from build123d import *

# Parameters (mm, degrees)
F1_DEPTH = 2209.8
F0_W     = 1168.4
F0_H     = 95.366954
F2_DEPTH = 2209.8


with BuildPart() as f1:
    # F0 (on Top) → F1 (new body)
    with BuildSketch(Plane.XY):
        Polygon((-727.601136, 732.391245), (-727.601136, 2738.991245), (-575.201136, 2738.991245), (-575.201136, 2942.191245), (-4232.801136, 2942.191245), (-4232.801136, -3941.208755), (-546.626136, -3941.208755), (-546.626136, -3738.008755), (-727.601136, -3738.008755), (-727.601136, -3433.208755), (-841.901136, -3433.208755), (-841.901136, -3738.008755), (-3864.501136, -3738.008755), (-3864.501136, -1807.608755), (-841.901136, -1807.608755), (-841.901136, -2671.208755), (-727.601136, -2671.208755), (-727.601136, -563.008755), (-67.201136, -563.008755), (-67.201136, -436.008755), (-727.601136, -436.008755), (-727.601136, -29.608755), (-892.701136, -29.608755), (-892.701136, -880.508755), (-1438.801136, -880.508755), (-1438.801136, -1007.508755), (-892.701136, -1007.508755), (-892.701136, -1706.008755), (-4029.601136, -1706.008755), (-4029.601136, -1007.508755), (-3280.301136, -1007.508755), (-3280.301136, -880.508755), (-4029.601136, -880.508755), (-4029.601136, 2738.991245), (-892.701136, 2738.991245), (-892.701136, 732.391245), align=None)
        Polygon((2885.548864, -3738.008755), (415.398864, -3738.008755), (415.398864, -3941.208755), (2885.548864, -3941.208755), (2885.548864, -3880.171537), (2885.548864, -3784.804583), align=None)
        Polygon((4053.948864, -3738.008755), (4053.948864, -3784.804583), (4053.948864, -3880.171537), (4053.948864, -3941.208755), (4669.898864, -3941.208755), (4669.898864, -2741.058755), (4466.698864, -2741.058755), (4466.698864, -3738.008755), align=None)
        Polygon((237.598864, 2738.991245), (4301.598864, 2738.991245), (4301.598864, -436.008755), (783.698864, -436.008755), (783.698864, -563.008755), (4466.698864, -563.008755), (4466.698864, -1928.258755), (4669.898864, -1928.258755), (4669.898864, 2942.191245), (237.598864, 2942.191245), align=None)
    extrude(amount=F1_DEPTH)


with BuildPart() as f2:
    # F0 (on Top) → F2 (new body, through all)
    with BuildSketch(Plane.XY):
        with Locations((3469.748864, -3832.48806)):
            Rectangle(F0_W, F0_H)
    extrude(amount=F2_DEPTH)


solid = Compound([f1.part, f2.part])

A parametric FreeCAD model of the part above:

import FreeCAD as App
import Part
import Sketcher
Q = App.Units.Quantity


def add_polygon(sketch, points):
    """Adds a closed chain of lines whose ends are joined by coincident constraints."""
    first, n = sketch.GeometryCount, len(points)
    for a, b in zip(points, points[1:] + points[:1]):
        sketch.addGeometry(Part.LineSegment(App.Vector(*a, 0), App.Vector(*b, 0)), False)
    for i in range(n):
        sketch.addConstraint(Sketcher.Constraint("Coincident", first + i, 2, first + (i + 1) % n, 1))

doc = App.newDocument("Part")
body = doc.addObject("PartDesign::Body", "Body")
body.AllowCompound = True

# Sketch on XY plane
sketch1 = body.newObject("Sketcher::SketchObject", "Sketch")
sketch1.AttachmentSupport = (doc.getObject("XY_Plane"), [""])
sketch1.MapMode = "FlatFace"
add_polygon(sketch1, [(-727.601136, 732.391245), (-727.601136, 2738.991245), (-575.201136, 2738.991245), (-575.201136, 2942.191245), (-4232.801136, 2942.191245), (-4232.801136, -3941.208755), (-546.626136, -3941.208755), (-546.626136, -3738.008755), (-727.601136, -3738.008755), (-727.601136, -3433.208755), (-841.901136, -3433.208755), (-841.901136, -3738.008755), (-3864.501136, -3738.008755), (-3864.501136, -1807.608755), (-841.901136, -1807.608755), (-841.901136, -2671.208755), (-727.601136, -2671.208755), (-727.601136, -563.008755), (-67.201136, -563.008755), (-67.201136, -436.008755), (-727.601136, -436.008755), (-727.601136, -29.608755), (-892.701136, -29.608755), (-892.701136, -880.508755), (-1438.801136, -880.508755), (-1438.801136, -1007.508755), (-892.701136, -1007.508755), (-892.701136, -1706.008755), (-4029.601136, -1706.008755), (-4029.601136, -1007.508755), (-3280.301136, -1007.508755), (-3280.301136, -880.508755), (-4029.601136, -880.508755), (-4029.601136, 2738.991245), (-892.701136, 2738.991245), (-892.701136, 732.391245)])  # lines 0-35
add_polygon(sketch1, [(2885.548864, -3738.008755), (415.398864, -3738.008755), (415.398864, -3941.208755), (2885.548864, -3941.208755)])  # lines 36-39
add_polygon(sketch1, [(4053.948864, -3738.008755), (4053.948864, -3941.208755), (4669.898864, -3941.208755), (4669.898864, -2741.058755), (4466.698864, -2741.058755), (4466.698864, -3738.008755)])  # lines 40-45
add_polygon(sketch1, [(237.598864, 2738.991245), (4301.598864, 2738.991245), (4301.598864, -436.008755), (783.698864, -436.008755), (783.698864, -563.008755), (4466.698864, -563.008755), (4466.698864, -1928.258755), (4669.898864, -1928.258755), (4669.898864, 2942.191245), (237.598864, 2942.191245)])  # lines 46-55
sketch1.addConstraint([
    Sketcher.Constraint("Vertical", 0),
    Sketcher.Constraint("Horizontal", 1),
    Sketcher.Constraint("Vertical", 2),
    Sketcher.Constraint("Horizontal", 3),
    Sketcher.Constraint("Vertical", 4),
    Sketcher.Constraint("Horizontal", 5),
    Sketcher.Constraint("Vertical", 6),
    Sketcher.Constraint("Horizontal", 7),
    Sketcher.Constraint("Vertical", 8),
    Sketcher.Constraint("Horizontal", 9),
    Sketcher.Constraint("Vertical", 10),
    Sketcher.Constraint("Horizontal", 11),
    Sketcher.Constraint("Vertical", 12),
    Sketcher.Constraint("Horizontal", 13),
    Sketcher.Constraint("Vertical", 14),
    Sketcher.Constraint("Horizontal", 15),
    Sketcher.Constraint("Vertical", 16),
    Sketcher.Constraint("Horizontal", 17),
    Sketcher.Constraint("Vertical", 18),
    Sketcher.Constraint("Horizontal", 19),
    Sketcher.Constraint("Vertical", 20),
    Sketcher.Constraint("Horizontal", 21),
    Sketcher.Constraint("Vertical", 22),
    Sketcher.Constraint("Horizontal", 23),
    Sketcher.Constraint("Vertical", 24),
    Sketcher.Constraint("Horizontal", 25),
    Sketcher.Constraint("Vertical", 26),
    Sketcher.Constraint("Horizontal", 27),
    Sketcher.Constraint("Vertical", 28),
    Sketcher.Constraint("Horizontal", 29),
    Sketcher.Constraint("Vertical", 30),
    Sketcher.Constraint("Horizontal", 31),
    Sketcher.Constraint("Vertical", 32),
    Sketcher.Constraint("Horizontal", 33),
    Sketcher.Constraint("Vertical", 34),
    Sketcher.Constraint("Horizontal", 35),
    Sketcher.Constraint("Horizontal", 36),
    Sketcher.Constraint("Vertical", 37),
    Sketcher.Constraint("Horizontal", 38),
    Sketcher.Constraint("Vertical", 39),
    Sketcher.Constraint("Vertical", 40),
    Sketcher.Constraint("Horizontal", 41),
    Sketcher.Constraint("Vertical", 42),
    Sketcher.Constraint("Horizontal", 43),
    Sketcher.Constraint("Vertical", 44),
    Sketcher.Constraint("Horizontal", 45),
    Sketcher.Constraint("Horizontal", 46),
    Sketcher.Constraint("Vertical", 47),
    Sketcher.Constraint("Horizontal", 48),
    Sketcher.Constraint("Vertical", 49),
    Sketcher.Constraint("Horizontal", 50),
    Sketcher.Constraint("Vertical", 51),
    Sketcher.Constraint("Horizontal", 52),
    Sketcher.Constraint("Vertical", 53),
    Sketcher.Constraint("Horizontal", 54),
    Sketcher.Constraint("Vertical", 55),
    Sketcher.Constraint("Horizontal", 7, 2, 10, 2),
    Sketcher.Constraint("Horizontal", 25, 2, 28, 2),
    Sketcher.Constraint("Horizontal", 23, 2, 30, 2),
    Sketcher.Constraint("Horizontal", 1, 2, 32, 2),
    Sketcher.Constraint("Horizontal", 11, 2, 36, 2),
    Sketcher.Constraint("Horizontal", 5, 2, 37, 2),
    Sketcher.Constraint("Horizontal", 38, 2, 40, 2),
    Sketcher.Constraint("Horizontal", 39, 2, 44, 2),
    Sketcher.Constraint("Horizontal", 33, 2, 46, 2),
    Sketcher.Constraint("Horizontal", 19, 2, 47, 2),
    Sketcher.Constraint("Horizontal", 17, 2, 49, 2),
    Sketcher.Constraint("Horizontal", 3, 2, 53, 2),
    Sketcher.Constraint("Vertical", 0, 2, 7, 2),
    Sketcher.Constraint("Vertical", 10, 2, 13, 2),
    Sketcher.Constraint("Vertical", 8, 2, 15, 2),
    Sketcher.Constraint("Vertical", 16, 2, 19, 2),
    Sketcher.Constraint("Vertical", 22, 2, 25, 2),
    Sketcher.Constraint("Vertical", 28, 2, 31, 2),
    Sketcher.Constraint("Vertical", 26, 2, 33, 2),
    Sketcher.Constraint("Vertical", 44, 2, 50, 2),
    Sketcher.Constraint("Vertical", 42, 2, 52, 2),
    Sketcher.Constraint("Equal", 52, 2),
    Sketcher.Constraint("Equal", 2, 6),
    Sketcher.Constraint("Equal", 18, 24),
    Sketcher.Constraint("DistanceX", 1, 1, 1, 2, Q("6 in")),
    Sketcher.Constraint("DistanceX", 3, 2, 3, 1, Q("144 in")),
    Sketcher.Constraint("DistanceX", 11, 2, 11, 1, Q("119 in")),
    Sketcher.Constraint("DistanceX", 17, 1, 17, 2, Q("26 in")),
    Sketcher.Constraint("DistanceX", 43, 2, 43, 1, Q("8 in")),
    Sketcher.Constraint("DistanceX", 46, 1, 46, 2, Q("160 in")),
    Sketcher.Constraint("DistanceX", 50, 1, 50, 2, Q("145 in")),
    Sketcher.Constraint("DistanceY", 0, 1, 0, 2, Q("79 in")),
    Sketcher.Constraint("DistanceY", 4, 2, 4, 1, Q("271 in")),
    Sketcher.Constraint("DistanceY", 8, 1, 8, 2, Q("12 in")),
    Sketcher.Constraint("DistanceY", 12, 1, 12, 2, Q("76 in")),
    Sketcher.Constraint("DistanceY", 14, 2, 14, 1, Q("34 in")),
    Sketcher.Constraint("DistanceY", 16, 1, 16, 2, Q("83 in")),
    Sketcher.Constraint("DistanceY", 18, 1, 18, 2, Q("5 in")),
    Sketcher.Constraint("DistanceY", 20, 1, 20, 2, Q("16 in")),
    Sketcher.Constraint("DistanceX", 9, 2, 9, 1, Q("4.5 in")),
    Sketcher.Constraint("DistanceX", 21, 2, 21, 1, Q("6.5 in")),
    Sketcher.Constraint("DistanceX", 23, 2, 23, 1, Q("21.5 in")),
    Sketcher.Constraint("DistanceX", 27, 2, 27, 1, Q("123.5 in")),
    Sketcher.Constraint("DistanceX", 29, 1, 29, 2, Q("29.5 in")),
    Sketcher.Constraint("DistanceX", 48, 2, 48, 1, Q("138.5 in")),
    Sketcher.Constraint("DistanceY", 22, 2, 22, 1, Q("33.5 in")),
    Sketcher.Constraint("DistanceY", 26, 2, 26, 1, Q("27.5 in")),
    Sketcher.Constraint("DistanceX", 7, 2, 36, 2, Q("45 in")),
    Sketcher.Constraint("DistanceX", 38, 2, 40, 2, Q("46 in")),
    Sketcher.Constraint("DistanceX", 1, 2, 46, 2, Q("192 in")),
    Sketcher.Constraint("DistanceY", 43, 2, 51, 2, Q("32 in")),
    Sketcher.Constraint("DistanceX", 36, 2, 36, 1, Q("97.25 in")),
    Sketcher.Constraint("DistanceY", 42, 1, 42, 2, Q("47.25 in")),
    Sketcher.Constraint("DistanceX", 5, 1, 5, 2, Q("145.125 in")),
    Sketcher.Constraint("DistanceX", 0, 2, -1, 1, Q("727.601136 mm")),
    Sketcher.Constraint("DistanceY", -1, 1, 0, 2, Q("2738.991245 mm")),
])
pad1 = body.newObject("PartDesign::Pad", "Pad")
pad1.Profile = sketch1
pad1.Length = Q("87 in")
body2 = doc.addObject("PartDesign::Body", "Body001")

# Sketch on XY plane
sketch2 = body2.newObject("Sketcher::SketchObject", "Sketch001")
sketch2.AttachmentSupport = (doc.getObject("XY_Plane001"), [""])
sketch2.MapMode = "FlatFace"
add_polygon(sketch2, [(2885.548864, -3784.804583), (2885.548864, -3880.171537), (4053.948864, -3880.171537), (4053.948864, -3784.804583)])  # lines 0-3
sketch2.addConstraint([
    Sketcher.Constraint("Vertical", 0),
    Sketcher.Constraint("Horizontal", 1),
    Sketcher.Constraint("Vertical", 2),
    Sketcher.Constraint("Horizontal", 3),
    Sketcher.Constraint("DistanceX", 1, 1, 1, 2, Q("46 in")),
    Sketcher.Constraint("DistanceY", 0, 2, 0, 1, Q("95.366954 mm")),
    Sketcher.Constraint("DistanceX", -1, 1, 0, 2, Q("2885.548864 mm")),
    Sketcher.Constraint("DistanceY", 0, 2, -1, 1, Q("3880.171537 mm")),
])
pad2 = body2.newObject("PartDesign::Pad", "Pad001")
pad2.Profile = sketch2
pad2.Length = Q("87 in")

doc.recompute()
